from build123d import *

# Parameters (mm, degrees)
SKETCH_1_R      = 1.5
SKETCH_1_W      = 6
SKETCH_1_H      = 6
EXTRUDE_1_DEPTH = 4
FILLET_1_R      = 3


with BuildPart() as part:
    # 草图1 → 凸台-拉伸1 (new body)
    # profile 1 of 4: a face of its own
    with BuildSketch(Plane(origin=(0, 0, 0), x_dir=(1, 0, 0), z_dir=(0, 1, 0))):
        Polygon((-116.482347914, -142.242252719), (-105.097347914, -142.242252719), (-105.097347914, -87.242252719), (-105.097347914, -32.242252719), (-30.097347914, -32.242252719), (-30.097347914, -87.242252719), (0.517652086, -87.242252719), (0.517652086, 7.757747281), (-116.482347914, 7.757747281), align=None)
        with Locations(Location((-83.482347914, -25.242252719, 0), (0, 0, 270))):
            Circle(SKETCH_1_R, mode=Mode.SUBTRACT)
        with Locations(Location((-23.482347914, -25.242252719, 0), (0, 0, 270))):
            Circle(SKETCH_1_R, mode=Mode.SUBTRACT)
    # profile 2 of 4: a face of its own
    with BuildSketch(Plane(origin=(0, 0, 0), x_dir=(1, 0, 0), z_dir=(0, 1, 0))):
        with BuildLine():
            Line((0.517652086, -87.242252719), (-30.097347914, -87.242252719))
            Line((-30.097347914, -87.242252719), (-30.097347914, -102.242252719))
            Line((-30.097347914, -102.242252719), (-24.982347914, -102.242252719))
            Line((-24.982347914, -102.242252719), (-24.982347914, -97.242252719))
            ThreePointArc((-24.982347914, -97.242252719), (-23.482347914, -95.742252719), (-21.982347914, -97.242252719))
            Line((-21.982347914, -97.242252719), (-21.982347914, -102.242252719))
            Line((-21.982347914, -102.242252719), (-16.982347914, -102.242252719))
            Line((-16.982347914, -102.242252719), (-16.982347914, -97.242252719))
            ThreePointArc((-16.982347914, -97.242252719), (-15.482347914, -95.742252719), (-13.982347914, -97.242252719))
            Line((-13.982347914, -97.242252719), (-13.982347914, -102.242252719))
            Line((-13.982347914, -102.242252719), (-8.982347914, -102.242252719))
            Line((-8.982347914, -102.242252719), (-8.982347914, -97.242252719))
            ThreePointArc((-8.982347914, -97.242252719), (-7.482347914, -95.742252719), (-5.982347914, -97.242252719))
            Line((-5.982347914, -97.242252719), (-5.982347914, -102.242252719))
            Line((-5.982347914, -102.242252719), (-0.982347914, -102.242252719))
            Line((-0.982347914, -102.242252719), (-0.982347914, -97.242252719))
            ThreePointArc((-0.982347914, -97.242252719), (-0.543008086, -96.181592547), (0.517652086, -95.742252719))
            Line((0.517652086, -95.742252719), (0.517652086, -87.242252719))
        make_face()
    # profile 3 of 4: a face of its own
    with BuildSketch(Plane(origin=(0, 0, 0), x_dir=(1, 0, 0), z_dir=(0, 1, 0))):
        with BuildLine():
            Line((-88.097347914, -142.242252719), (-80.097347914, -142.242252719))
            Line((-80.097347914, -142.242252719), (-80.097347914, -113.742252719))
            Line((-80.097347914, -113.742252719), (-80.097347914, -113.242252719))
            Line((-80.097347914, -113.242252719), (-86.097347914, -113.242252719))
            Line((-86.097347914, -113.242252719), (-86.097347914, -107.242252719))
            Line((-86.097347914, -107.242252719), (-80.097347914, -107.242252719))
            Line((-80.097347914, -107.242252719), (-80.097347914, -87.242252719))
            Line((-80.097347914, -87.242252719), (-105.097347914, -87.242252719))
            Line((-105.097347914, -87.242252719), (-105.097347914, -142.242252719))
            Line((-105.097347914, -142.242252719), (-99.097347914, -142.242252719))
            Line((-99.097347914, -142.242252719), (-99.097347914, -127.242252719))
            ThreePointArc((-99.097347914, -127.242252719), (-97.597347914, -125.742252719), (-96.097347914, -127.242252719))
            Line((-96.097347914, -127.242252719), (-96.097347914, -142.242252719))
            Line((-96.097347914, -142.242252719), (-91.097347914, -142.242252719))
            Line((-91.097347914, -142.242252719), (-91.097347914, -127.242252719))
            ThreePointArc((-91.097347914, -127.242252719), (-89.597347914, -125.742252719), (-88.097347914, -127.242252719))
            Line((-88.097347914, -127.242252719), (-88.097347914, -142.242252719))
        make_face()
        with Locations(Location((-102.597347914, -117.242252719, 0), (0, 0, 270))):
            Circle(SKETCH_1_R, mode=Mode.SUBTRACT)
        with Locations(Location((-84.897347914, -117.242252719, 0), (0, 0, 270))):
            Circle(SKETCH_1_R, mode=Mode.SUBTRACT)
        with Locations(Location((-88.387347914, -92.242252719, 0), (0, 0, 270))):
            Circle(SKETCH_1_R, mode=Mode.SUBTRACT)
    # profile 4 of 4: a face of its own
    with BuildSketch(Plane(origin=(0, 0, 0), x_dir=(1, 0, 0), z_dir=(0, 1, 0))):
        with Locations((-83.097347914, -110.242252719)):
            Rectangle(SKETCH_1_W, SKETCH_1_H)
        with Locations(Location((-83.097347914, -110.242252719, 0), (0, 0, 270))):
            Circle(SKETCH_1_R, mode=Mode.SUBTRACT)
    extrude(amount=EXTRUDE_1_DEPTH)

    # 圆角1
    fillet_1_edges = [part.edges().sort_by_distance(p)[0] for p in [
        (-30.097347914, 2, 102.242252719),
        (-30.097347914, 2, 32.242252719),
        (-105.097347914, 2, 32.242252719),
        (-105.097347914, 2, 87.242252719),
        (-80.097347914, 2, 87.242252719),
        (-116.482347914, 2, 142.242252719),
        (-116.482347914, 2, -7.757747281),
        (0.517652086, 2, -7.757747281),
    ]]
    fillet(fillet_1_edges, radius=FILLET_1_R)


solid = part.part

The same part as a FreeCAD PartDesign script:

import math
import FreeCAD as App
import Part
import Sketcher
from FreeCAD import Vector
Q = App.Units.Quantity


def edges_at(feature, points):
    """Names of the edges that pass closest to the given points."""
    edges = feature.Shape.Edges
    near = lambda p: min(range(len(edges)), key=lambda i: edges[i].distToShape(Part.Vertex(*p))[0])
    return sorted({f"Edge{near(p) + 1}" for p in points})

doc = App.newDocument("Part")
body = doc.addObject("PartDesign::Body", "Body")

# Sketch on XZ plane
sketch1 = body.newObject("Sketcher::SketchObject", "Sketch")
sketch1.AttachmentSupport = (doc.getObject("XZ_Plane"), [""])
sketch1.MapMode = "FlatFace"
sketch1.addGeometry([
    Part.LineSegment(Vector(-116.5, 142.2, 0), Vector(-99.1, 142.2, 0)),  # 0
    Part.LineSegment(Vector(-99.1, 142.2, 0), Vector(-99.1, 127.2, 0)),  # 1
    Part.ArcOfCircle(Part.Circle(Vector(-97.6, 127.2, 0), Vector(0, 0, 1), 1.5), math.radians(180), math.radians(360)),  # 2
    Part.LineSegment(Vector(-96.1, 127.2, 0), Vector(-96.1, 142.2, 0)),  # 3
    Part.LineSegment(Vector(-96.1, 142.2, 0), Vector(-91.1, 142.2, 0)),  # 4
    Part.LineSegment(Vector(-91.1, 142.2, 0), Vector(-91.1, 127.2, 0)),  # 5
    Part.ArcOfCircle(Part.Circle(Vector(-89.6, 127.2, 0), Vector(0, 0, 1), 1.5), math.radians(180), math.radians(360)),  # 6
    Part.LineSegment(Vector(-88.1, 127.2, 0), Vector(-88.1, 142.2, 0)),  # 7
    Part.LineSegment(Vector(-88.1, 142.2, 0), Vector(-80.1, 142.2, 0)),  # 8
    Part.LineSegment(Vector(-80.1, 142.2, 0), Vector(-80.1, 87.2, 0)),  # 9
    Part.LineSegment(Vector(-80.1, 87.2, 0), Vector(-105.1, 87.2, 0)),  # 10
    Part.LineSegment(Vector(-105.1, 87.2, 0), Vector(-105.1, 32.2, 0)),  # 11
    Part.LineSegment(Vector(-105.1, 32.2, 0), Vector(-30.1, 32.2, 0)),  # 12
    Part.LineSegment(Vector(-30.1, 32.2, 0), Vector(-30.1, 102.2, 0)),  # 13
    Part.LineSegment(Vector(-30.1, 102.2, 0), Vector(-25, 102.2, 0)),  # 14
    Part.LineSegment(Vector(-25, 102.2, 0), Vector(-25, 97.2, 0)),  # 15
    Part.ArcOfCircle(Part.Circle(Vector(-23.5, 97.2, 0), Vector(0, 0, 1), 1.5), math.radians(180), math.radians(360)),  # 16
    Part.LineSegment(Vector(-22, 97.2, 0), Vector(-22, 102.2, 0)),  # 17
    Part.LineSegment(Vector(-22, 102.2, 0), Vector(-17, 102.2, 0)),  # 18
    Part.LineSegment(Vector(-17, 102.2, 0), Vector(-17, 97.2, 0)),  # 19
    Part.ArcOfCircle(Part.Circle(Vector(-15.5, 97.2, 0), Vector(0, 0, 1), 1.5), math.radians(180), math.radians(360)),  # 20
    Part.LineSegment(Vector(-14, 97.2, 0), Vector(-14, 102.2, 0)),  # 21
    Part.LineSegment(Vector(-14, 102.2, 0), Vector(-9, 102.2, 0)),  # 22
    Part.LineSegment(Vector(-9, 102.2, 0), Vector(-9, 97.2, 0)),  # 23
    Part.ArcOfCircle(Part.Circle(Vector(-7.5, 97.2, 0), Vector(0, 0, 1), 1.5), math.radians(180), math.radians(360)),  # 24
    Part.LineSegment(Vector(-6, 97.2, 0), Vector(-6, 102.2, 0)),  # 25
    Part.LineSegment(Vector(-6, 102.2, 0), Vector(-1, 102.2, 0)),  # 26
    Part.LineSegment(Vector(-1, 102.2, 0), Vector(-1, 97.2, 0)),  # 27
    Part.ArcOfCircle(Part.Circle(Vector(0.5, 97.2, 0), Vector(0, 0, 1), 1.5), math.radians(180), math.radians(270)),  # 28
    Part.LineSegment(Vector(0.5, 95.7, 0), Vector(0.5, -7.8, 0)),  # 29
    Part.LineSegment(Vector(0.5, -7.8, 0), Vector(-116.5, -7.8, 0)),  # 30
    Part.LineSegment(Vector(-116.5, -7.8, 0), Vector(-116.5, 142.2, 0)),  # 31
    Part.Circle(Vector(-83.5, 25.2, 0), Vector(0, 0, 1), 1.5),  # 32
    Part.Circle(Vector(-23.5, 25.2, 0), Vector(0, 0, 1), 1.5),  # 33
    Part.Circle(Vector(-88.4, 92.2, 0), Vector(0, 0, 1), 1.5),  # 34
    Part.Circle(Vector(-102.6, 117.2, 0), Vector(0, 0, 1), 1.5),  # 35
    Part.Circle(Vector(-84.9, 117.2, 0), Vector(0, 0, 1), 1.5),  # 36
    Part.Circle(Vector(-83.1, 110.2, 0), Vector(0, 0, 1), 1.5),  # 37
], False)
sketch1.addConstraint([
    Sketcher.Constraint("Coincident", 0, 2, 1, 1),
    Sketcher.Constraint("Tangent", 1, 2, 2, 1),
    Sketcher.Constraint("Tangent", 2, 2, 3, 1),
    Sketcher.Constraint("Coincident", 3, 2, 4, 1),
    Sketcher.Constraint("Coincident", 4, 2, 5, 1),
    Sketcher.Constraint("Tangent", 5, 2, 6, 1),
    Sketcher.Constraint("Tangent", 6, 2, 7, 1),
    Sketcher.Constraint("Coincident", 7, 2, 8, 1),
    Sketcher.Constraint("Coincident", 8, 2, 9, 1),
    Sketcher.Constraint("Coincident", 9, 2, 10, 1),
    Sketcher.Constraint("Coincident", 10, 2, 11, 1),
    Sketcher.Constraint("Coincident", 11, 2, 12, 1),
    Sketcher.Constraint("Coincident", 12, 2, 13, 1),
    Sketcher.Constraint("Coincident", 13, 2, 14, 1),
    Sketcher.Constraint("Coincident", 14, 2, 15, 1),
    Sketcher.Constraint("Tangent", 15, 2, 16, 1),
    Sketcher.Constraint("Tangent", 16, 2, 17, 1),
    Sketcher.Constraint("Coincident", 17, 2, 18, 1),
    Sketcher.Constraint("Coincident", 18, 2, 19, 1),
    Sketcher.Constraint("Tangent", 19, 2, 20, 1),
    Sketcher.Constraint("Tangent", 20, 2, 21, 1),
    Sketcher.Constraint("Coincident", 21, 2, 22, 1),
    Sketcher.Constraint("Coincident", 22, 2, 23, 1),
    Sketcher.Constraint("Tangent", 23, 2, 24, 1),
    Sketcher.Constraint("Tangent", 24, 2, 25, 1),
    Sketcher.Constraint("Coincident", 25, 2, 26, 1),
    Sketcher.Constraint("Coincident", 26, 2, 27, 1),
    Sketcher.Constraint("Tangent", 27, 2, 28, 1),
    Sketcher.Constraint("Coincident", 28, 2, 29, 1),
    Sketcher.Constraint("Coincident", 29, 2, 30, 1),
    Sketcher.Constraint("Coincident", 30, 2, 31, 1),
    Sketcher.Constraint("Coincident", 31, 2, 0, 1),
    Sketcher.Constraint("Horizontal", 0),
    Sketcher.Constraint("Vertical", 1),
    Sketcher.Constraint("Vertical", 3),
    Sketcher.Constraint("Horizontal", 4),
    Sketcher.Constraint("Vertical", 5),
    Sketcher.Constraint("Vertical", 7),
    Sketcher.Constraint("Horizontal", 8),
    Sketcher.Constraint("Vertical", 9),
    Sketcher.Constraint("Horizontal", 10),
    Sketcher.Constraint("Vertical", 11),
    Sketcher.Constraint("Horizontal", 12),
    Sketcher.Constraint("Vertical", 13),
    Sketcher.Constraint("Horizontal", 14),
    Sketcher.Constraint("Vertical", 15),
    Sketcher.Constraint("Vertical", 17),
    Sketcher.Constraint("Horizontal", 18),
    Sketcher.Constraint("Vertical", 19),
    Sketcher.Constraint("Vertical", 21),
    Sketcher.Constraint("Horizontal", 22),
    Sketcher.Constraint("Vertical", 23),
    Sketcher.Constraint("Vertical", 25),
    Sketcher.Constraint("Horizontal", 26),
    Sketcher.Constraint("Vertical", 27),
    Sketcher.Constraint("Vertical", 29),
    Sketcher.Constraint("Horizontal", 30),
    Sketcher.Constraint("Vertical", 31),
    Sketcher.Constraint("Equal", 2, 6),
    Sketcher.Constraint("Equal", 6, 16),
    Sketcher.Constraint("Equal", 16, 20),
    Sketcher.Constraint("Equal", 20, 24),
    Sketcher.Constraint("Equal", 24, 28),
    Sketcher.Constraint("Equal", 28, 32),
    Sketcher.Constraint("Equal", 32, 33),
    Sketcher.Constraint("Equal", 33, 34),
    Sketcher.Constraint("Equal", 34, 35),
    Sketcher.Constraint("Equal", 35, 36),
    Sketcher.Constraint("Equal", 36, 37),
    Sketcher.Constraint("Horizontal", 2, 3, 6, 3),
    Sketcher.Constraint("Horizontal", 16, 3, 20, 3),
    Sketcher.Constraint("Horizontal", 20, 3, 24, 3),
    Sketcher.Constraint("Horizontal", 24, 3, 28, 3),
    Sketcher.Constraint("Horizontal", 32, 3, 33, 3),
    Sketcher.Constraint("Horizontal", 35, 3, 36, 3),
    Sketcher.Constraint("Horizontal", 0, 2, 3, 2),
    Sketcher.Constraint("Horizontal", 4, 2, 7, 2),
    Sketcher.Constraint("Horizontal", 14, 2, 17, 2),
    Sketcher.Constraint("Horizontal", 18, 2, 21, 2),
    Sketcher.Constraint("Horizontal", 22, 2, 25, 2),
    Sketcher.Constraint("Vertical", 16, 3, 33, 3),
    Sketcher.Constraint("Equal", 4, 18),
    Sketcher.Constraint("Equal", 18, 22),
    Sketcher.Constraint("Equal", 22, 26),
    Sketcher.Constraint("Equal", 9, 11),
    Sketcher.Constraint("Equal", 26, 15),
    Sketcher.Constraint("Diameter", 32, Q("3 mm")),
    Sketcher.Constraint("DistanceX", 4, 1, 4, 2, Q("5 mm")),
    Sketcher.Constraint("DistanceX", 8, 1, 8, 2, Q("8 mm")),
    Sketcher.Constraint("DistanceX", 10, 2, 10, 1, Q("25 mm")),
    Sketcher.Constraint("DistanceX", 12, 1, 12, 2, Q("75 mm")),
    Sketcher.Constraint("DistanceX", 30, 2, 30, 1, Q("117 mm")),
    Sketcher.Constraint("DistanceY", 1, 2, 1, 1, Q("15 mm")),
    Sketcher.Constraint("DistanceY", 9, 2, 9, 1, Q("55 mm")),
    Sketcher.Constraint("DistanceY", 13, 1, 13, 2, Q("70 mm")),
    Sketcher.Constraint("DistanceY", 31, 1, 31, 2, Q("150 mm")),
    Sketcher.Constraint("DistanceX", 32, 3, 16, 3, Q("60 mm")),
    Sketcher.Constraint("DistanceY", 32, 3, 16, 3, Q("72 mm")),
    Sketcher.Constraint("DistanceY", 34, 3, 6, 3, Q("35 mm")),
    Sketcher.Constraint("DistanceX", 35, 3, 2, 3, Q("5 mm")),
    Sketcher.Constraint("DistanceY", 35, 3, 2, 3, Q("10 mm")),
    Sketcher.Constraint("DistanceY", 37, 3, 36, 3, Q("7 mm")),
    Sketcher.Constraint("DistanceX", 0, 2, 37, 3, Q("16 mm")),
    Sketcher.Constraint("DistanceX", 24, 3, 28, 2, Q("8 mm")),
    Sketcher.Constraint("DistanceX", 6, 3, 36, 3, Q("4.7 mm")),
    Sketcher.Constraint("DistanceX", 0, 1, 0, 2, Q("17.385 mm")),
    Sketcher.Constraint("DistanceX", 6, 3, 34, 3, Q("1.21 mm")),
    Sketcher.Constraint("DistanceX", 2, 3, -1, 1, Q("97.597348 mm")),
    Sketcher.Constraint("DistanceY", -1, 1, 2, 3, Q("127.242253 mm")),
])
pad1 = body.newObject("PartDesign::Pad", "Pad")
pad1.Profile = sketch1
pad1.Length = 4
pad1.Reversed = True
doc.recompute()

fillet = body.newObject("PartDesign::Fillet", "Fillet")
fillet.Base = (pad1, edges_at(pad1, [
    (-30.097, 2, 102.242),
    (-30.097, 2, 32.242),
    (-105.097, 2, 32.242),
    (-105.097, 2, 87.242),
    (-80.097, 2, 87.242),
    (-116.482, 2, 142.242),
    (-116.482, 2, -7.758),
    (0.518, 2, -7.758),
]))
fillet.Radius = 3

doc.recompute()
